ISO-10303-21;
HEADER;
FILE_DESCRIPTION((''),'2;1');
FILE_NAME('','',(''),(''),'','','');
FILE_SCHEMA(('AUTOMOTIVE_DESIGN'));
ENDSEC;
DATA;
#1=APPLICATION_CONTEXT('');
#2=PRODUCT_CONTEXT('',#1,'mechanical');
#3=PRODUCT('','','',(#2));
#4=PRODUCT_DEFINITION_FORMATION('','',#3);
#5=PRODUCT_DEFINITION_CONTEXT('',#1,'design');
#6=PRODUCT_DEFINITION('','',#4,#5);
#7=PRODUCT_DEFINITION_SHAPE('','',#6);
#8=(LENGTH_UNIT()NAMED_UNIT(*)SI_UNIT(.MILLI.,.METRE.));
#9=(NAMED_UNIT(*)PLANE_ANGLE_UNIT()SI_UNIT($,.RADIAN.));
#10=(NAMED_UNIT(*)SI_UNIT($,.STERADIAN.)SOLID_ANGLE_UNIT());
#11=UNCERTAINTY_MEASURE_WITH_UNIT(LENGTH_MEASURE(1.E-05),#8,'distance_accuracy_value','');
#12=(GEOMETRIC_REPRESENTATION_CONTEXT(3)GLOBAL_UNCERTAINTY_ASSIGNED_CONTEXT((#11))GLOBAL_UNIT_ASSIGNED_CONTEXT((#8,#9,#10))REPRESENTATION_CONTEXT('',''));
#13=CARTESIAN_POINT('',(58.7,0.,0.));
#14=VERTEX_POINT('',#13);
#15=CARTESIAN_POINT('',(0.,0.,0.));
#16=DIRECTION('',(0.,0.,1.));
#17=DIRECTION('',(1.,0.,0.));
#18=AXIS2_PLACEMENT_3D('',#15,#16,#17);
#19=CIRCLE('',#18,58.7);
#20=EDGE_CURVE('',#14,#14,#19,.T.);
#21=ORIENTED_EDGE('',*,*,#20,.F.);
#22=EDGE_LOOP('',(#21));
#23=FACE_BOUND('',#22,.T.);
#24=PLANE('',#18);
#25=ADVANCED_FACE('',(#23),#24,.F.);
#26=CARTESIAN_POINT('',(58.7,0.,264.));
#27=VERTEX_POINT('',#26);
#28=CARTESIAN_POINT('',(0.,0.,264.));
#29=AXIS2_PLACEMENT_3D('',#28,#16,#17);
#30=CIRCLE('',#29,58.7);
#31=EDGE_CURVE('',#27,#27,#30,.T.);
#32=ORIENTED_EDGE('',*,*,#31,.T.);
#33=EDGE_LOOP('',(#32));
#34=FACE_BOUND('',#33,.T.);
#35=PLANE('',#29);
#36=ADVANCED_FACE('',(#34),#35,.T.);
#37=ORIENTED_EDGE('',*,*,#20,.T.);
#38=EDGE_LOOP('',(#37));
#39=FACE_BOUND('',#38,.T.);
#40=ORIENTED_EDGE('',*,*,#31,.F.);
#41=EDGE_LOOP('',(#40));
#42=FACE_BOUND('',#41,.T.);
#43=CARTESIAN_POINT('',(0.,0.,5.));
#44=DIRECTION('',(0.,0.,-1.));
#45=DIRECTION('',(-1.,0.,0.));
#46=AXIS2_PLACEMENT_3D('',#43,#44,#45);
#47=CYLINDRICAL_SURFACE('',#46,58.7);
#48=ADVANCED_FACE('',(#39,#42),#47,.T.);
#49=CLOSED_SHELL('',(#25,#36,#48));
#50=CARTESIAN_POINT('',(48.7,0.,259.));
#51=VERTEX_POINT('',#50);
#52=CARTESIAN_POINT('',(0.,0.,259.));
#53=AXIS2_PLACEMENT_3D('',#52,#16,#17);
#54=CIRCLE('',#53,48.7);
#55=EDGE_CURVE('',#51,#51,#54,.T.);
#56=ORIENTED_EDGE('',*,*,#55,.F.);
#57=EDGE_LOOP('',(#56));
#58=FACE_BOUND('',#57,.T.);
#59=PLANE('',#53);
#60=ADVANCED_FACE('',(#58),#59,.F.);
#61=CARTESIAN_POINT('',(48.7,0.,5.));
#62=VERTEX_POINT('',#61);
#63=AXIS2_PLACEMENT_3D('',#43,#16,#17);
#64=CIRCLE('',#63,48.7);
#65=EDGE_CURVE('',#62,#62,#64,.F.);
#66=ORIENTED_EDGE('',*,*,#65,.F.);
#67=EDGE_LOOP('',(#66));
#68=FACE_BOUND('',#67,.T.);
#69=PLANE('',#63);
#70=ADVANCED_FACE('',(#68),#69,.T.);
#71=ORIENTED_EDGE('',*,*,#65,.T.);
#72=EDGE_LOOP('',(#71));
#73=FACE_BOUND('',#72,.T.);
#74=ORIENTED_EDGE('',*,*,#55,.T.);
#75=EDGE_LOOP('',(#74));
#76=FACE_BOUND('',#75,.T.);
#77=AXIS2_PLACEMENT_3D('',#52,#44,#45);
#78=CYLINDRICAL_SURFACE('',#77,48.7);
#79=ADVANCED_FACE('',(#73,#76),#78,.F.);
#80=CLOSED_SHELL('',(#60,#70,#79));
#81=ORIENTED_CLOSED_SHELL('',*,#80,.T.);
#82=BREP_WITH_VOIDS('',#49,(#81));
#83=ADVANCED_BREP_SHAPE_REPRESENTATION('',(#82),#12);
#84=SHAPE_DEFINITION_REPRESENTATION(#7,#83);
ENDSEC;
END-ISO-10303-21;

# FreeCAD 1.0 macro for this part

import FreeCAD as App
import Part
import Sketcher

V = App.Vector
Q = App.Units.Quantity

doc = App.newDocument("Part")
body = doc.addObject("PartDesign::Body", "Body")

# Sketch on XY plane
sketch1 = body.newObject("Sketcher::SketchObject", "Sketch")
sketch1.AttachmentSupport = (doc.getObject("XY_Plane"), [""])
sketch1.MapMode = "FlatFace"
sketch1.addGeometry(Part.Circle(V(0, 0, 0), V(0, 0, 1), 58.7), False)
sketch1.addConstraint([
    Sketcher.Constraint("Coincident", 0, 3, -1, 1),
    Sketcher.Constraint("Diameter", 0, Q("117.4 mm")),
])
pad1 = body.newObject("PartDesign::Pad", "Pad")
pad1.Profile = sketch1
pad1.Length = 5

# Sketch on XY plane
sketch2 = body.newObject("Sketcher::SketchObject", "Sketch001")
sketch2.AttachmentSupport = (doc.getObject("XY_Plane"), [""])
sketch2.MapMode = "FlatFace"
sketch2.AttachmentOffset = App.Placement(V(0, 0, 5), App.Rotation())
sketch2.addGeometry([
    Part.Circle(V(0, 0, 0), V(0, 0, 1), 58.7),
    Part.Circle(V(0, 0, 0), V(0, 0, 1), 48.7),
], False)
sketch2.addConstraint([
    Sketcher.Constraint("Coincident", 0, 3, -1, 1),
    Sketcher.Constraint("Coincident", 1, 3, -1, 1),
    Sketcher.Constraint("Diameter", 0, Q("117.4 mm")),
    Sketcher.Constraint("Diameter", 1, Q("97.4 mm")),
])
pad2 = body.newObject("PartDesign::Pad", "Pad001")
pad2.Profile = sketch2
pad2.Length = 254

# Sketch on XY plane
sketch3 = body.newObject("Sketcher::SketchObject", "Sketch002")
sketch3.AttachmentSupport = (doc.getObject("XY_Plane"), [""])
sketch3.MapMode = "FlatFace"
sketch3.AttachmentOffset = App.Placement(V(0, 0, 259), App.Rotation())
sketch3.addGeometry(Part.Circle(V(0, 0, 0), V(0, 0, 1), 58.7), False)
sketch3.addConstraint([
    Sketcher.Constraint("Coincident", 0, 3, -1, 1),
    Sketcher.Constraint("Diameter", 0, Q("117.4 mm")),
])
pad3 = body.newObject("PartDesign::Pad", "Pad002")
pad3.Profile = sketch3
pad3.Length = 5

doc.recompute()
